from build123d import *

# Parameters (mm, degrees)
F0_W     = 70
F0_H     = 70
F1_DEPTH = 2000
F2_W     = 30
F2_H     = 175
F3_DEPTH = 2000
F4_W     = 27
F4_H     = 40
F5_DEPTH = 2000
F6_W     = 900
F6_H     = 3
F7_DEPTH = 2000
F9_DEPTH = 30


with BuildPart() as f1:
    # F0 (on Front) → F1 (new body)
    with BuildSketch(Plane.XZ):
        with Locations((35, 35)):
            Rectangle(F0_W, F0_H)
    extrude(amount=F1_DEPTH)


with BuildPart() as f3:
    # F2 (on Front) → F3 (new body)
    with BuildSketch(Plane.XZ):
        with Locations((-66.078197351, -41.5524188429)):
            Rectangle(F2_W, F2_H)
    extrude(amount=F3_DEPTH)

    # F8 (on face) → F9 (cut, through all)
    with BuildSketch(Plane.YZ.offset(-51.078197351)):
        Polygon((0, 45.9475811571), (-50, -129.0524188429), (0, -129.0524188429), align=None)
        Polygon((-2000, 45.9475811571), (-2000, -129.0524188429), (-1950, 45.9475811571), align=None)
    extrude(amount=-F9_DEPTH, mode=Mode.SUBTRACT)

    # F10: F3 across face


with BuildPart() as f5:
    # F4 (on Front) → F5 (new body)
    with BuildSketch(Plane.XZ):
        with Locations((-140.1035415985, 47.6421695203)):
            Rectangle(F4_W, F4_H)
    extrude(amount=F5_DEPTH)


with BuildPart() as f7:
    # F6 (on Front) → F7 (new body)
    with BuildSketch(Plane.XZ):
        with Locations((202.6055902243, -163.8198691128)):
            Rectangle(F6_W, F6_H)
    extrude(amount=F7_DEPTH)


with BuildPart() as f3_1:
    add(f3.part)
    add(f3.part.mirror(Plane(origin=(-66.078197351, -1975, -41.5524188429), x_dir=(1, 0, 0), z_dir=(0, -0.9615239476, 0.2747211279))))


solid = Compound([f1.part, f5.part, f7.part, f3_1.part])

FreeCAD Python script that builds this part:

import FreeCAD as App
import Part
import Sketcher

V = App.Vector

doc = App.newDocument("Part")
body = doc.addObject("PartDesign::Body", "Body")

# Sketch on XZ plane
sketch1 = body.newObject("Sketcher::SketchObject", "Sketch")
sketch1.AttachmentSupport = (doc.getObject("XZ_Plane"), [""])
sketch1.MapMode = "FlatFace"
sketch1.addGeometry(Part.LineSegment(V(0, 70, 0), V(0, 0, 0)), False)
sketch1.addGeometry(Part.LineSegment(V(0, 0, 0), V(70, 0, 0)), False)
sketch1.addGeometry(Part.LineSegment(V(70, 0, 0), V(70, 70, 0)), False)
sketch1.addGeometry(Part.LineSegment(V(70, 70, 0), V(0, 70, 0)), False)
sketch1.addConstraint(Sketcher.Constraint("Coincident", 0, 2, 1, 1))
sketch1.addConstraint(Sketcher.Constraint("Coincident", 1, 2, 2, 1))
sketch1.addConstraint(Sketcher.Constraint("Coincident", 2, 2, 3, 1))
sketch1.addConstraint(Sketcher.Constraint("Coincident", 3, 2, 0, 1))
sketch1.addConstraint(Sketcher.Constraint("Vertical", 0))
sketch1.addConstraint(Sketcher.Constraint("Horizontal", 1))
sketch1.addConstraint(Sketcher.Constraint("Vertical", 2))
sketch1.addConstraint(Sketcher.Constraint("Horizontal", 3))
sketch1.addConstraint(Sketcher.Constraint("Coincident", 0, 2, -1, 1))
sketch1.addConstraint(Sketcher.Constraint("Equal", 3, 0))
sketch1.addConstraint(Sketcher.Constraint("DistanceX", 1, 1, 1, 2, 70.0))
pad1 = body.newObject("PartDesign::Pad", "Pad")
pad1.Profile = sketch1
pad1.Length = 2000
body2 = doc.addObject("PartDesign::Body", "Body001")

# Sketch on XZ plane
sketch2 = body2.newObject("Sketcher::SketchObject", "Sketch001")
sketch2.AttachmentSupport = (doc.getObject("XZ_Plane001"), [""])
sketch2.MapMode = "FlatFace"
sketch2.addGeometry(Part.LineSegment(V(-81, 46, 0), V(-81, -129, 0)), False)
sketch2.addGeometry(Part.LineSegment(V(-81, -129, 0), V(-51, -129, 0)), False)
sketch2.addGeometry(Part.LineSegment(V(-51, -129, 0), V(-51, 46, 0)), False)
sketch2.addGeometry(Part.LineSegment(V(-51, 46, 0), V(-81, 46, 0)), False)
sketch2.addConstraint(Sketcher.Constraint("Coincident", 0, 2, 1, 1))
sketch2.addConstraint(Sketcher.Constraint("Coincident", 1, 2, 2, 1))
sketch2.addConstraint(Sketcher.Constraint("Coincident", 2, 2, 3, 1))
sketch2.addConstraint(Sketcher.Constraint("Coincident", 3, 2, 0, 1))
sketch2.addConstraint(Sketcher.Constraint("Vertical", 0))
sketch2.addConstraint(Sketcher.Constraint("Horizontal", 1))
sketch2.addConstraint(Sketcher.Constraint("Vertical", 2))
sketch2.addConstraint(Sketcher.Constraint("Horizontal", 3))
sketch2.addConstraint(Sketcher.Constraint("DistanceX", 1, 1, 1, 2, 30.0))
sketch2.addConstraint(Sketcher.Constraint("DistanceY", 0, 2, 0, 1, 175.0))
sketch2.addConstraint(Sketcher.Constraint("DistanceY", 0, 2, -1, 1, 129.052419))
sketch2.addConstraint(Sketcher.Constraint("DistanceX", 0, 2, -1, 1, 81.078197))
pad2 = body2.newObject("PartDesign::Pad", "Pad001")
pad2.Profile = sketch2
pad2.Length = 2000

# Sketch on YZ plane
sketch3 = body2.newObject("Sketcher::SketchObject", "Sketch002")
sketch3.AttachmentSupport = (doc.getObject("YZ_Plane001"), [""])
sketch3.MapMode = "FlatFace"
sketch3.AttachmentOffset = App.Placement(V(0, 0, -51.078197), App.Rotation())
sketch3.addGeometry(Part.LineSegment(V(0, 46, 0), V(-50, -129, 0)), False)
sketch3.addGeometry(Part.LineSegment(V(-50, -129, 0), V(0, -129, 0)), False)
sketch3.addGeometry(Part.LineSegment(V(0, -129, 0), V(0, 46, 0)), False)
sketch3.addGeometry(Part.LineSegment(V(-2000, 46, 0), V(-2000, -129, 0)), False)
sketch3.addGeometry(Part.LineSegment(V(-2000, -129, 0), V(-1950, 46, 0)), False)
sketch3.addGeometry(Part.LineSegment(V(-1950, 46, 0), V(-2000, 46, 0)), False)
sketch3.addConstraint(Sketcher.Constraint("Coincident", 0, 2, 1, 1))
sketch3.addConstraint(Sketcher.Constraint("Coincident", 1, 2, 2, 1))
sketch3.addConstraint(Sketcher.Constraint("Coincident", 2, 2, 0, 1))
sketch3.addConstraint(Sketcher.Constraint("Coincident", 3, 2, 4, 1))
sketch3.addConstraint(Sketcher.Constraint("Coincident", 4, 2, 5, 1))
sketch3.addConstraint(Sketcher.Constraint("Coincident", 5, 2, 3, 1))
sketch3.addConstraint(Sketcher.Constraint("Horizontal", 1))
sketch3.addConstraint(Sketcher.Constraint("Vertical", 2))
sketch3.addConstraint(Sketcher.Constraint("Vertical", 3))
sketch3.addConstraint(Sketcher.Constraint("Horizontal", 5))
sketch3.addConstraint(Sketcher.Constraint("PointOnObject", 1, 2, -2))
sketch3.addConstraint(Sketcher.Constraint("Parallel", 0, 4))
sketch3.addConstraint(Sketcher.Constraint("Horizontal", 1, 2, 3, 2))
sketch3.addConstraint(Sketcher.Constraint("Horizontal", 2, 2, 4, 2))
sketch3.addConstraint(Sketcher.Constraint("DistanceX", 1, 1, 1, 2, 50.0))
sketch3.addConstraint(Sketcher.Constraint("DistanceY", 2, 1, 2, 2, 175.0))
sketch3.addConstraint(Sketcher.Constraint("DistanceX", 3, 2, -1, 1, 2000.0))
sketch3.addConstraint(Sketcher.Constraint("DistanceY", 0, 2, -1, 1, 129.052419))
pocket1 = body2.newObject("PartDesign::Pocket", "Pocket")
pocket1.Profile = sketch3
pocket1.Type = "ThroughAll"
body3 = doc.addObject("PartDesign::Body", "Body002")

# Sketch on XZ plane
sketch4 = body3.newObject("Sketcher::SketchObject", "Sketch003")
sketch4.AttachmentSupport = (doc.getObject("XZ_Plane002"), [""])
sketch4.MapMode = "FlatFace"
sketch4.addGeometry(Part.LineSegment(V(-154, 68, 0), V(-154, 28, 0)), False)
sketch4.addGeometry(Part.LineSegment(V(-154, 28, 0), V(-127, 28, 0)), False)
sketch4.addGeometry(Part.LineSegment(V(-127, 28, 0), V(-127, 68, 0)), False)
sketch4.addGeometry(Part.LineSegment(V(-127, 68, 0), V(-154, 68, 0)), False)
sketch4.addConstraint(Sketcher.Constraint("Coincident", 0, 2, 1, 1))
sketch4.addConstraint(Sketcher.Constraint("Coincident", 1, 2, 2, 1))
sketch4.addConstraint(Sketcher.Constraint("Coincident", 2, 2, 3, 1))
sketch4.addConstraint(Sketcher.Constraint("Coincident", 3, 2, 0, 1))
sketch4.addConstraint(Sketcher.Constraint("Vertical", 0))
sketch4.addConstraint(Sketcher.Constraint("Horizontal", 1))
sketch4.addConstraint(Sketcher.Constraint("Vertical", 2))
sketch4.addConstraint(Sketcher.Constraint("Horizontal", 3))
sketch4.addConstraint(Sketcher.Constraint("DistanceX", 1, 1, 1, 2, 27.0))
sketch4.addConstraint(Sketcher.Constraint("DistanceY", 0, 2, 0, 1, 40.0))
sketch4.addConstraint(Sketcher.Constraint("DistanceX", 0, 2, -1, 1, 153.603542))
sketch4.addConstraint(Sketcher.Constraint("DistanceY", -1, 1, 0, 2, 27.64217))
pad3 = body3.newObject("PartDesign::Pad", "Pad002")
pad3.Profile = sketch4
pad3.Length = 2000
body4 = doc.addObject("PartDesign::Body", "Body003")

# Sketch on XZ plane
sketch5 = body4.newObject("Sketcher::SketchObject", "Sketch004")
sketch5.AttachmentSupport = (doc.getObject("XZ_Plane003"), [""])
sketch5.MapMode = "FlatFace"
sketch5.addGeometry(Part.LineSegment(V(-247.4, -162.3, 0), V(-247.4, -165.3, 0)), False)
sketch5.addGeometry(Part.LineSegment(V(-247.4, -165.3, 0), V(652.6, -165.3, 0)), False)
sketch5.addGeometry(Part.LineSegment(V(652.6, -165.3, 0), V(652.6, -162.3, 0)), False)
sketch5.addGeometry(Part.LineSegment(V(652.6, -162.3, 0), V(-247.4, -162.3, 0)), False)
sketch5.addConstraint(Sketcher.Constraint("Coincident", 0, 2, 1, 1))
sketch5.addConstraint(Sketcher.Constraint("Coincident", 1, 2, 2, 1))
sketch5.addConstraint(Sketcher.Constraint("Coincident", 2, 2, 3, 1))
sketch5.addConstraint(Sketcher.Constraint("Coincident", 3, 2, 0, 1))
sketch5.addConstraint(Sketcher.Constraint("Vertical", 0))
sketch5.addConstraint(Sketcher.Constraint("Horizontal", 1))
sketch5.addConstraint(Sketcher.Constraint("Vertical", 2))
sketch5.addConstraint(Sketcher.Constraint("Horizontal", 3))
sketch5.addConstraint(Sketcher.Constraint("DistanceX", 1, 1, 1, 2, 900.0))
sketch5.addConstraint(Sketcher.Constraint("DistanceY", 0, 2, 0, 1, 3.0))
sketch5.addConstraint(Sketcher.Constraint("DistanceX", 0, 2, -1, 1, 247.39441))
sketch5.addConstraint(Sketcher.Constraint("DistanceY", 0, 2, -1, 1, 165.319869))
pad4 = body4.newObject("PartDesign::Pad", "Pad003")
pad4.Profile = sketch5
pad4.Length = 2000
body5 = doc.addObject("PartDesign::Body", "Body004")
doc.recompute()

body5.BaseFeature = body2
doc.recompute()

mirroring = doc.addObject("Part::Mirroring", "Mirroring")
mirroring.Source = body2
mirroring.Base = V(-66.078197, -1975, -41.552419)
mirroring.Normal = V(0, -0.961523948, 0.274721128)
body6 = doc.addObject("PartDesign::Body", "Body005")
body6.BaseFeature = mirroring
boolean = body5.newObject("PartDesign::Boolean", "Boolean")
boolean.Type = "Fuse"
boolean.addObjects([body6])
doc.recompute()
mirroring.Visibility = False

doc.recompute()
